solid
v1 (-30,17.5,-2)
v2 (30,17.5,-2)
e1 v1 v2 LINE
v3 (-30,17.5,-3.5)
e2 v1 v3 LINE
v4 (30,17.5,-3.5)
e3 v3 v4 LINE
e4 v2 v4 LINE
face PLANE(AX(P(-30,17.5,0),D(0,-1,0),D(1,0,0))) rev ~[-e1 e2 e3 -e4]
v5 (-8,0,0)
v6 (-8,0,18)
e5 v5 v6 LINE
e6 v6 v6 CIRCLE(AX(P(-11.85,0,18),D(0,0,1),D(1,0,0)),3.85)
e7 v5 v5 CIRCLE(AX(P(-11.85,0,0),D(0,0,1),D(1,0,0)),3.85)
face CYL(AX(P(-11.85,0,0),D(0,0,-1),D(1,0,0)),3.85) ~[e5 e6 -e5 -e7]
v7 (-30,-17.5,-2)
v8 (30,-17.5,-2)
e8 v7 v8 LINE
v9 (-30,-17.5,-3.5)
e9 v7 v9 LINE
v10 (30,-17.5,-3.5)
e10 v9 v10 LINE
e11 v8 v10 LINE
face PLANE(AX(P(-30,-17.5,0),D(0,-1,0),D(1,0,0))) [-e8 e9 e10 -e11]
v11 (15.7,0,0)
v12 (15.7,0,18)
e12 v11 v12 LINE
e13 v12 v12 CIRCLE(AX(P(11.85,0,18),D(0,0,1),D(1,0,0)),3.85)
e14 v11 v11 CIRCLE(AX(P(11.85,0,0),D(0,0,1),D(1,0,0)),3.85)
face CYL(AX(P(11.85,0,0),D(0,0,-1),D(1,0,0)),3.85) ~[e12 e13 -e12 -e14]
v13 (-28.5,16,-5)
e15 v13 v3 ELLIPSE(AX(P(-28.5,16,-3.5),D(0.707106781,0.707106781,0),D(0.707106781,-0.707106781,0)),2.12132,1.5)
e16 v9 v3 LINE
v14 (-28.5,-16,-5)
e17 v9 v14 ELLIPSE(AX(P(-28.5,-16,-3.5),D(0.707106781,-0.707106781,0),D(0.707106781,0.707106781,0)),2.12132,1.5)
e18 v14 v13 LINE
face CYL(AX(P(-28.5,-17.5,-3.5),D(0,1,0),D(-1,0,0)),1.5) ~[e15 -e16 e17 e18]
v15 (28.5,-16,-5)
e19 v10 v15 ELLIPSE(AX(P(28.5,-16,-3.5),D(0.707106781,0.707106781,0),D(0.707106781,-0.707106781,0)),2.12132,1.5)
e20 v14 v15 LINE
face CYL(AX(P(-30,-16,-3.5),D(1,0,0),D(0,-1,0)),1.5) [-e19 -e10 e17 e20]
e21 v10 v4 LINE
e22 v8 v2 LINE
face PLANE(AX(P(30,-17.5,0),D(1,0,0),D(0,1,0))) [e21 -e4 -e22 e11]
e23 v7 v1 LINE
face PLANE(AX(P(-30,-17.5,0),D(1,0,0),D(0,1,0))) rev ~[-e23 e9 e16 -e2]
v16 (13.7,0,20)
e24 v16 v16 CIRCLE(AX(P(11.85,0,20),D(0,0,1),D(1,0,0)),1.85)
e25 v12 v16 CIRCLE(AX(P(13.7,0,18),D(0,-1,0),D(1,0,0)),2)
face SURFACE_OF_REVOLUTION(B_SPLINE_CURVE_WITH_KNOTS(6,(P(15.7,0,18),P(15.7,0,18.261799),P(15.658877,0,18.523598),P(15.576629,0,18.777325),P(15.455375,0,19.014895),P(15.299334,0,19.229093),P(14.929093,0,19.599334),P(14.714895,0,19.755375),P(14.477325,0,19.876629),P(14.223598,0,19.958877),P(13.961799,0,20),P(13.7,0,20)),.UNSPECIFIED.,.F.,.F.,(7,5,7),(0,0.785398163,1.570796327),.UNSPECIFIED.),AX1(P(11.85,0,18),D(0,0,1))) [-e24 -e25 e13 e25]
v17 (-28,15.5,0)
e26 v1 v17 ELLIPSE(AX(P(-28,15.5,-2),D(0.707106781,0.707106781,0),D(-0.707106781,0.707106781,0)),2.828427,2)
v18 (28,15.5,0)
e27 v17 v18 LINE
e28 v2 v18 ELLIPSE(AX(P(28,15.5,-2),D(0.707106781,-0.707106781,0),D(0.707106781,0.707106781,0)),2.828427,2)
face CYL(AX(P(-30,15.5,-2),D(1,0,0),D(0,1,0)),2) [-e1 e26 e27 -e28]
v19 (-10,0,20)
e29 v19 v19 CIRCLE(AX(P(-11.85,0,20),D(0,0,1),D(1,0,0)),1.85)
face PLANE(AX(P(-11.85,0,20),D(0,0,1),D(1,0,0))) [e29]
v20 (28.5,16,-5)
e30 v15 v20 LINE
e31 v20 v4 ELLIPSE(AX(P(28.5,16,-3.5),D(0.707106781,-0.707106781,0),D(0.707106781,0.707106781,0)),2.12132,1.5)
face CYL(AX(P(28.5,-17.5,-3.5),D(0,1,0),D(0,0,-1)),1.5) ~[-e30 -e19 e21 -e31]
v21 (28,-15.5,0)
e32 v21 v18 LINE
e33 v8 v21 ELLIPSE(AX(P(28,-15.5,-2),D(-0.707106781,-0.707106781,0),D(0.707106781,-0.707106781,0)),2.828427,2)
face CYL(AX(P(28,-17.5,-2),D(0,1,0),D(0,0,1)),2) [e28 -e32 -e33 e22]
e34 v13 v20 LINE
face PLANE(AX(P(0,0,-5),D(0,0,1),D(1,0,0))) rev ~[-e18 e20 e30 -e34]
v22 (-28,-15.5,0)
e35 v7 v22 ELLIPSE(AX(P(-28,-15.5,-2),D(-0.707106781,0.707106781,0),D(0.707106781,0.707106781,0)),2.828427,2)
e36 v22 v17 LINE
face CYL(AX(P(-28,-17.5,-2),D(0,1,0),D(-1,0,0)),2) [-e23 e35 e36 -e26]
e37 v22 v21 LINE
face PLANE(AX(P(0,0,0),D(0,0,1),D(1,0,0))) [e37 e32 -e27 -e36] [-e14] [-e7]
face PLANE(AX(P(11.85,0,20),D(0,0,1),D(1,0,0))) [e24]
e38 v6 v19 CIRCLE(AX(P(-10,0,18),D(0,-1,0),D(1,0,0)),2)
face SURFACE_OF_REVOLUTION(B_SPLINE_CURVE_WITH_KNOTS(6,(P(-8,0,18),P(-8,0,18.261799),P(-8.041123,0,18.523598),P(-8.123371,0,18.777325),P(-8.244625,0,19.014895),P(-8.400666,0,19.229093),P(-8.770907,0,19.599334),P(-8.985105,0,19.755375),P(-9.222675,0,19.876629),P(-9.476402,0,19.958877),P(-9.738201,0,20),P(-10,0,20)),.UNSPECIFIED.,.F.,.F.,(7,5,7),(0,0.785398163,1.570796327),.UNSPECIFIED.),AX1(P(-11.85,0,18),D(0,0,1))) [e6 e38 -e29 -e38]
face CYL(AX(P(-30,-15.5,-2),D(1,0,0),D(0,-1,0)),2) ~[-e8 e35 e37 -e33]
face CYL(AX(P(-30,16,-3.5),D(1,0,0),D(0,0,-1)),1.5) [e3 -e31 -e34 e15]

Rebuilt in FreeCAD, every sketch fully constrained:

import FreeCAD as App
import Part
import Sketcher


def edges_at(feature, points):
    """Names of the edges that pass closest to the given points."""
    edges = feature.Shape.Edges
    near = lambda p: min(range(len(edges)), key=lambda i: edges[i].distToShape(Part.Vertex(*p))[0])
    return sorted({f"Edge{near(p) + 1}" for p in points})


def add_polygon(sketch, points):
    """Adds a closed chain of lines whose ends are joined by coincident constraints."""
    first, n = sketch.GeometryCount, len(points)
    for a, b in zip(points, points[1:] + points[:1]):
        sketch.addGeometry(Part.LineSegment(App.Vector(*a, 0), App.Vector(*b, 0)), False)
    for i in range(n):
        sketch.addConstraint(Sketcher.Constraint("Coincident", first + i, 2, first + (i + 1) % n, 1))

doc = App.newDocument("Part")
body = doc.addObject("PartDesign::Body", "Body")

sketch1 = doc.addObject("Sketcher::SketchObject", "Sketch")
body.addObject(sketch1)
sketch1.AttachmentSupport = (doc.XY_Plane, [""])
sketch1.MapMode = "FlatFace"
add_polygon(sketch1, [(-30, 17.5), (-30, -17.5), (30, -17.5), (30, 17.5)])
sketch1.addConstraint([
    Sketcher.Constraint("Vertical", 0),
    Sketcher.Constraint("Horizontal", 1),
    Sketcher.Constraint("Vertical", 2),
    Sketcher.Constraint("Horizontal", 3),
    Sketcher.Constraint("Symmetric", 0, 2, 2, 2, -1, 1),
    Sketcher.Constraint("DistanceX", 1, 1, 1, 2, 60.0),
    Sketcher.Constraint("DistanceY", 0, 2, 0, 1, 35.0),
])
pad1 = doc.addObject("PartDesign::Pad", "Pad")
body.addObject(pad1)
pad1.Profile = sketch1
pad1.Length = 5
pad1.Reversed = True

sketch2 = doc.addObject("Sketcher::SketchObject", "Sketch001")
body.addObject(sketch2)
sketch2.AttachmentSupport = (doc.XY_Plane, [""])
sketch2.MapMode = "FlatFace"
sketch2.addGeometry([
    Part.Circle(App.Vector(11.85, 0, 0), App.Vector(0, 0, 1), 3.85),
    Part.Circle(App.Vector(-11.85, 0, 0), App.Vector(0, 0, 1), 3.85),
], False)
sketch2.addConstraint([
    Sketcher.Constraint("Equal", 0, 1),
    Sketcher.Constraint("Symmetric", 0, 3, 1, 3, -1, 1),
    Sketcher.Constraint("PointOnObject", 0, 3, -1),
    Sketcher.Constraint("Diameter", 0, 7.7),
    Sketcher.Constraint("DistanceX", 1, 3, 0, 3, 23.7),
])
pad2 = doc.addObject("PartDesign::Pad", "Pad001")
body.addObject(pad2)
pad2.Profile = sketch2
pad2.Length = 20
doc.recompute()

fillet = doc.addObject("PartDesign::Fillet", "Fillet")
body.addObject(fillet)
fillet.Base = (pad2, edges_at(pad2, [
    (0, -17.5, 0),
    (-30, 0, 0),
    (0, 17.5, 0),
    (30, 0, 0),
    (8, 0, 20),
    (-15.7, 0, 20),
]))
fillet.Radius = 2
doc.recompute()

fillet2 = doc.addObject("PartDesign::Fillet", "Fillet001")
body.addObject(fillet2)
fillet2.Base = (fillet, edges_at(fillet, [
    (0, 17.5, -5),
    (-30, 0, -5),
    (0, -17.5, -5),
    (30, 0, -5),
]))
fillet2.Radius = 1.5

doc.recompute()
